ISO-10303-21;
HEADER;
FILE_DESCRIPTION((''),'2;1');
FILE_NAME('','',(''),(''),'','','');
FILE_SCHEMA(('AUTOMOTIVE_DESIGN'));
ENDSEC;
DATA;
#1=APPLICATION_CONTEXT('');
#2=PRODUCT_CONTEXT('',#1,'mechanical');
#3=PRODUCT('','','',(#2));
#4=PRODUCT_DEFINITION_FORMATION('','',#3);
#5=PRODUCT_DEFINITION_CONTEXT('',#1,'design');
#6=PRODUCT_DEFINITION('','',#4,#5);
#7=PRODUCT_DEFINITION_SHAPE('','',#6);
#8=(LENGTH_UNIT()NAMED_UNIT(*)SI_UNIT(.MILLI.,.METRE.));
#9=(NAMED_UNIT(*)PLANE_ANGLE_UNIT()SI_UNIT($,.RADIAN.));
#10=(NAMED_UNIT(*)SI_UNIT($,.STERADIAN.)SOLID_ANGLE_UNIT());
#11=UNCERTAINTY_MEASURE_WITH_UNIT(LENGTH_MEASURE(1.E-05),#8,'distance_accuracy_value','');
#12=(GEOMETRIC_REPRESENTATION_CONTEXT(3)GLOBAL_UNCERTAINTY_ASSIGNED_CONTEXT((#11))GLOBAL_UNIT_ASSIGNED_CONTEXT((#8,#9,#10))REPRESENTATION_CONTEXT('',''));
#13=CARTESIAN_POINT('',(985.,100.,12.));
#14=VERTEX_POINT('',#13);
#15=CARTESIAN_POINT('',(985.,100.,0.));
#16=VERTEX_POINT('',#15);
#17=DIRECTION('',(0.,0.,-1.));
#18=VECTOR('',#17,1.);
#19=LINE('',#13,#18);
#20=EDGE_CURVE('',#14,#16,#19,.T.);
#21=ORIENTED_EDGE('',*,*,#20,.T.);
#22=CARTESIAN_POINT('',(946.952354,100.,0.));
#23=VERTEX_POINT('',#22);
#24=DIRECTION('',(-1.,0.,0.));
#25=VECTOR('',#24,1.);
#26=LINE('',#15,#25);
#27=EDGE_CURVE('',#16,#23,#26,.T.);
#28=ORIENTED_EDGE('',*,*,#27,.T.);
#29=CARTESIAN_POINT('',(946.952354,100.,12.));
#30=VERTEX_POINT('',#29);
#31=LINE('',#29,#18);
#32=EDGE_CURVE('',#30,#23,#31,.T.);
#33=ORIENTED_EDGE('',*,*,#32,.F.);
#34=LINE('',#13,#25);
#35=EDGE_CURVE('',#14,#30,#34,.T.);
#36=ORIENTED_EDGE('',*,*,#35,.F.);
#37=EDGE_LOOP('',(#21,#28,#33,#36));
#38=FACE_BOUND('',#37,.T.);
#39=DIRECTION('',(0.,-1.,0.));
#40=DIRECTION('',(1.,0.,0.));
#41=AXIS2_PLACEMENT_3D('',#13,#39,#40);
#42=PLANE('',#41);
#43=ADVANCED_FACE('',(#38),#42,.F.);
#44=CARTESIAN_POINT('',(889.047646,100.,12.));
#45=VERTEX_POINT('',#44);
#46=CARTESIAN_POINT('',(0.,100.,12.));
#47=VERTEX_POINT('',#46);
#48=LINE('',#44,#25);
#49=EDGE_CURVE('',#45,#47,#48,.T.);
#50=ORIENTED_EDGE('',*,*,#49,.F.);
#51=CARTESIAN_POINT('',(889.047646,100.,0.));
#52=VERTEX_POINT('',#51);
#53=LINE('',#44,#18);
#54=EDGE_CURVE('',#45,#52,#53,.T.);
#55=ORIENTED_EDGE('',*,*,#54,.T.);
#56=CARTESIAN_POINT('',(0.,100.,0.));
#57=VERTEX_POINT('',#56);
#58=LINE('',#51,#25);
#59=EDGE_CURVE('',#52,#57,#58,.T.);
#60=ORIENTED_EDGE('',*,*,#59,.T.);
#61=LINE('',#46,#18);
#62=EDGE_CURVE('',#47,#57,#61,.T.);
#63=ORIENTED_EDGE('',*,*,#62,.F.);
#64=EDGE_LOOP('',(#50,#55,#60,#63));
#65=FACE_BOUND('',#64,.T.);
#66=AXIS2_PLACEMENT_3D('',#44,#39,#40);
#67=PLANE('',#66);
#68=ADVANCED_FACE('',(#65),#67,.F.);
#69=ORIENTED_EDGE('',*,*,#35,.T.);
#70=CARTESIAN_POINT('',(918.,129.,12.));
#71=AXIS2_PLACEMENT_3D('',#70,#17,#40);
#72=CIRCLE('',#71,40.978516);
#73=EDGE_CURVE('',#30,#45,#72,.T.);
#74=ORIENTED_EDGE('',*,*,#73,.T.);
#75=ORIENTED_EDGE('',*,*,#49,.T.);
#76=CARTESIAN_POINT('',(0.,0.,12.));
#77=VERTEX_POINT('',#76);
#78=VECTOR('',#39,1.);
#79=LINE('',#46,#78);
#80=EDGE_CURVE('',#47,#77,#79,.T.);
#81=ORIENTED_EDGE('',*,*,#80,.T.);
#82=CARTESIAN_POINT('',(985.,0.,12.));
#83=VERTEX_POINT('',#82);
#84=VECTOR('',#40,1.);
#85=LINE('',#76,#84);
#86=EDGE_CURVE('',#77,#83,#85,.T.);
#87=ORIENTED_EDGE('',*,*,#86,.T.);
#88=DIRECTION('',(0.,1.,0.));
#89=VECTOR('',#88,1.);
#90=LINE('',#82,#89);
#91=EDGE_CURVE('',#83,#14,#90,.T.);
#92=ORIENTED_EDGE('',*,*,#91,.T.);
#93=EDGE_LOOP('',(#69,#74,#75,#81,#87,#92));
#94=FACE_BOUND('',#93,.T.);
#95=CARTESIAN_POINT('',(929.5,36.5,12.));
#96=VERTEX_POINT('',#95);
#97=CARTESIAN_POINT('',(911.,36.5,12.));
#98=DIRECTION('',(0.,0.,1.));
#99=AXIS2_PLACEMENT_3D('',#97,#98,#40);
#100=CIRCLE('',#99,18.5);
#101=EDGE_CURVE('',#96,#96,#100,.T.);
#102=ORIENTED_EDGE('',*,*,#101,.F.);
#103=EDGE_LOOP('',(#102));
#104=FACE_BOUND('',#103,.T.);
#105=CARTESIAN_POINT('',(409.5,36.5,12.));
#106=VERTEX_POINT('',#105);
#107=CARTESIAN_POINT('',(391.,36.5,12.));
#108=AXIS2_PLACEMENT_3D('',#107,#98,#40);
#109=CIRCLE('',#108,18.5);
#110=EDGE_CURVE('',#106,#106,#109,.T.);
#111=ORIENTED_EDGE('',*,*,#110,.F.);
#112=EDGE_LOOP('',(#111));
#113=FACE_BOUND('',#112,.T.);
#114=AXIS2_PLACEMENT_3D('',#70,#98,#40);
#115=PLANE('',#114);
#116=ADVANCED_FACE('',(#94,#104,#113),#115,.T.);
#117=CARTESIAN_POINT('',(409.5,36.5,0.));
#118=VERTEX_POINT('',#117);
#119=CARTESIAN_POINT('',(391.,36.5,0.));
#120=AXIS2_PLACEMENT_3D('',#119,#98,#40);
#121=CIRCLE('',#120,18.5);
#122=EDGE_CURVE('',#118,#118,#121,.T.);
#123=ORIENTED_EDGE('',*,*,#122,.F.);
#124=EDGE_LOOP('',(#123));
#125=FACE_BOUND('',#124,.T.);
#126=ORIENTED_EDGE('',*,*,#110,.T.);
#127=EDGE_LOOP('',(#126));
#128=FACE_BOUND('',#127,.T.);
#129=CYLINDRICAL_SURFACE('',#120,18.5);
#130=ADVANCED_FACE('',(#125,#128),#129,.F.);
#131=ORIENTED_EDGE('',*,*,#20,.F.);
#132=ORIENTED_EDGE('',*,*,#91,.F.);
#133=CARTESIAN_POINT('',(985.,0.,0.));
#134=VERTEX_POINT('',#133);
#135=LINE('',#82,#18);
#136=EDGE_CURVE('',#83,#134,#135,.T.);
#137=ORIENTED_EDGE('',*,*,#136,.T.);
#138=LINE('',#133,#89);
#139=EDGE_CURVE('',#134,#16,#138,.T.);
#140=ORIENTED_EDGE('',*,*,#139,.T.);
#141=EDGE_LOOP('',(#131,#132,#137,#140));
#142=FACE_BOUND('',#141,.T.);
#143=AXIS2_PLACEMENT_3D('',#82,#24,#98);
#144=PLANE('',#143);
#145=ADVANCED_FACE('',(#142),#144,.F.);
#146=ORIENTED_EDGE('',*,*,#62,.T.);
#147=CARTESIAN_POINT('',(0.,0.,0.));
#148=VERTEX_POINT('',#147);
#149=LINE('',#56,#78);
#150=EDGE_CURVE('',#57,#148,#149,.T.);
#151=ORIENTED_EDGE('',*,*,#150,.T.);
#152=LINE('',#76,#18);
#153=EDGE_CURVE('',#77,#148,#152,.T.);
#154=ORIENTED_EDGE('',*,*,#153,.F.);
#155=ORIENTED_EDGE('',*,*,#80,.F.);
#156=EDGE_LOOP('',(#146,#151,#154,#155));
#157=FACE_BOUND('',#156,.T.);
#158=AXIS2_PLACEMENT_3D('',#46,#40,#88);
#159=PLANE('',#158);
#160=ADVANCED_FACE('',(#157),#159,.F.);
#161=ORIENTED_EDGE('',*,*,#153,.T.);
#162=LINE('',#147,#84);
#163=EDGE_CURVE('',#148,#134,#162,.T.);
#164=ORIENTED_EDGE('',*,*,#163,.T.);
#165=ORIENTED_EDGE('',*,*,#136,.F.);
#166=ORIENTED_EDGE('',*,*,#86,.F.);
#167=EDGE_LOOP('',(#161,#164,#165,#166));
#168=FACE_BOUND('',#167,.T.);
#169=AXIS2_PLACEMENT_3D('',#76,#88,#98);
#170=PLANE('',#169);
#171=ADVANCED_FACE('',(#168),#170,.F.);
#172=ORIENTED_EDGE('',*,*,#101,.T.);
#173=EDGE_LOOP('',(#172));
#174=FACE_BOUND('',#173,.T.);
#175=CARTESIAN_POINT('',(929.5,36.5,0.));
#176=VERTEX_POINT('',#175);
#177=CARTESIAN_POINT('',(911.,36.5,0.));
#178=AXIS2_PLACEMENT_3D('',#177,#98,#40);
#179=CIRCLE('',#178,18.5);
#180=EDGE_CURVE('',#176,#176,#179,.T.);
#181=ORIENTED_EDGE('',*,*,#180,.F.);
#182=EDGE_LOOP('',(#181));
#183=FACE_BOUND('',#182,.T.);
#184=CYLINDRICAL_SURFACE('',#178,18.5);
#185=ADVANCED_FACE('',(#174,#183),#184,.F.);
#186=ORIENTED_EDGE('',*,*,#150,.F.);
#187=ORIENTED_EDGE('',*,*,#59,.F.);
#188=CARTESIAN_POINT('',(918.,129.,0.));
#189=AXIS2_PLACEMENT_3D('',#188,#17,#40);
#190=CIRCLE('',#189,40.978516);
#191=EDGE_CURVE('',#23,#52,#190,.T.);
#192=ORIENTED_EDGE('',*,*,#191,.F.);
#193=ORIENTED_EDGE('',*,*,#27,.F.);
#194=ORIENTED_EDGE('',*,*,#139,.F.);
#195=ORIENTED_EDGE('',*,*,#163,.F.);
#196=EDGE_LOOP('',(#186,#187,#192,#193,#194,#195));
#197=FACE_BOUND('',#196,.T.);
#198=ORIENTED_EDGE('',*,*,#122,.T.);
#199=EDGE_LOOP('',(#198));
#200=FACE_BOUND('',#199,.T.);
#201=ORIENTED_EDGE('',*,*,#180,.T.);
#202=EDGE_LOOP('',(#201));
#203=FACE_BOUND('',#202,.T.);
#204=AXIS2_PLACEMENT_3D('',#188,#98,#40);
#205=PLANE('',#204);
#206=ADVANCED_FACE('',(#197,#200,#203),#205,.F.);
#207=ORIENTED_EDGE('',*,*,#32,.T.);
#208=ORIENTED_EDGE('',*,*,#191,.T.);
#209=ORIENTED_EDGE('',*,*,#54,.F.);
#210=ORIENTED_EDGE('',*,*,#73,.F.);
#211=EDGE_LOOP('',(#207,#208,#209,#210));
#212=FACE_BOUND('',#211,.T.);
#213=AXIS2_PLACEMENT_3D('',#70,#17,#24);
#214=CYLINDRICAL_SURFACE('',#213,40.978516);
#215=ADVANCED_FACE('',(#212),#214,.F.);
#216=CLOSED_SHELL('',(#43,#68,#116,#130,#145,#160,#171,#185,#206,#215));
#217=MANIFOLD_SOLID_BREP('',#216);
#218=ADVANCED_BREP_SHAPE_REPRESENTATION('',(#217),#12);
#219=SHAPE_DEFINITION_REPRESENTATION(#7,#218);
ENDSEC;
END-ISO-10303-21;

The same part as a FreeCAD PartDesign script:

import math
import FreeCAD as App
import Part
import Sketcher

V = App.Vector

doc = App.newDocument("Part")
body = doc.addObject("PartDesign::Body", "Body")

# Sketch on XY plane
sketch1 = doc.addObject("Sketcher::SketchObject", "Sketch")
body.addObject(sketch1)
sketch1.AttachmentSupport = (doc.XY_Plane, [""])
sketch1.MapMode = "FlatFace"
sketch1.addGeometry(Part.LineSegment(V(0, 0, 0), V(985, 0, 0)), False)
sketch1.addGeometry(Part.LineSegment(V(985, 0, 0), V(985, 100, 0)), False)
sketch1.addGeometry(Part.LineSegment(V(985, 100, 0), V(946.952354, 100, 0)), False)
sketch1.addGeometry(Part.ArcOfCircle(Part.Circle(V(918, 129, 0), V(0, 0, 1), 40.978516), math.radians(-134.952894), math.radians(-45.047106)), False)
sketch1.addGeometry(Part.LineSegment(V(889.047646, 100, 0), V(0, 100, 0)), False)
sketch1.addGeometry(Part.LineSegment(V(0, 100, 0), V(0, 0, 0)), False)
sketch1.addConstraint(Sketcher.Constraint("Coincident", 0, 2, 1, 1))
sketch1.addConstraint(Sketcher.Constraint("Coincident", 1, 2, 2, 1))
sketch1.addConstraint(Sketcher.Constraint("Coincident", 2, 2, 3, 2))
sketch1.addConstraint(Sketcher.Constraint("Coincident", 3, 1, 4, 1))
sketch1.addConstraint(Sketcher.Constraint("Coincident", 4, 2, 5, 1))
sketch1.addConstraint(Sketcher.Constraint("Coincident", 5, 2, 0, 1))
sketch1.addConstraint(Sketcher.Constraint("Horizontal", 0))
sketch1.addConstraint(Sketcher.Constraint("Vertical", 1))
sketch1.addConstraint(Sketcher.Constraint("Horizontal", 2))
sketch1.addConstraint(Sketcher.Constraint("Horizontal", 4))
sketch1.addConstraint(Sketcher.Constraint("Vertical", 5))
sketch1.addConstraint(Sketcher.Constraint("Coincident", 5, 2, -1, 1))
sketch1.addConstraint(Sketcher.Constraint("Horizontal", 2, 2, 3, 1))
sketch1.addConstraint(Sketcher.Constraint("DistanceX", 0, 1, 0, 2, 985.0))
sketch1.addConstraint(Sketcher.Constraint("DistanceY", 1, 1, 1, 2, 100.0))
sketch1.addConstraint(Sketcher.Constraint("DistanceX", -1, 1, 3, 3, 918.0))
sketch1.addConstraint(Sketcher.Constraint("DistanceY", -1, 1, 3, 3, 129.0))
sketch1.addConstraint(Sketcher.Constraint("Radius", 3, 40.978516))
pad1 = doc.addObject("PartDesign::Pad", "Pad")
body.addObject(pad1)
pad1.Profile = sketch1
pad1.Length = 12

# Sketch on XY plane
sketch2 = doc.addObject("Sketcher::SketchObject", "Sketch001")
body.addObject(sketch2)
sketch2.AttachmentSupport = (doc.XY_Plane, [""])
sketch2.MapMode = "FlatFace"
sketch2.AttachmentOffset = App.Placement(V(0, 0, 12), App.Rotation())
sketch2.addGeometry(Part.Circle(V(911, 36.5, 0), V(0, 0, 1), 18.5), False)
sketch2.addConstraint(Sketcher.Constraint("Diameter", 0, 37.0))
sketch2.addConstraint(Sketcher.Constraint("DistanceX", -1, 1, 0, 3, 911.0))
sketch2.addConstraint(Sketcher.Constraint("DistanceY", -1, 1, 0, 3, 36.5))
pocket1 = doc.addObject("PartDesign::Pocket", "Pocket")
body.addObject(pocket1)
pocket1.Profile = sketch2
pocket1.Type = "ThroughAll"

# Sketch on XY plane
sketch3 = doc.addObject("Sketcher::SketchObject", "Sketch002")
body.addObject(sketch3)
sketch3.AttachmentSupport = (doc.XY_Plane, [""])
sketch3.MapMode = "FlatFace"
sketch3.AttachmentOffset = App.Placement(V(0, 0, 12), App.Rotation())
sketch3.addGeometry(Part.Circle(V(391, 36.5, 0), V(0, 0, 1), 18.5), False)
sketch3.addConstraint(Sketcher.Constraint("Diameter", 0, 37.0))
sketch3.addConstraint(Sketcher.Constraint("DistanceX", -1, 1, 0, 3, 391.0))
sketch3.addConstraint(Sketcher.Constraint("DistanceY", -1, 1, 0, 3, 36.5))
pocket2 = doc.addObject("PartDesign::Pocket", "Pocket001")
body.addObject(pocket2)
pocket2.Profile = sketch3
pocket2.Type = "ThroughAll"

doc.recompute()
